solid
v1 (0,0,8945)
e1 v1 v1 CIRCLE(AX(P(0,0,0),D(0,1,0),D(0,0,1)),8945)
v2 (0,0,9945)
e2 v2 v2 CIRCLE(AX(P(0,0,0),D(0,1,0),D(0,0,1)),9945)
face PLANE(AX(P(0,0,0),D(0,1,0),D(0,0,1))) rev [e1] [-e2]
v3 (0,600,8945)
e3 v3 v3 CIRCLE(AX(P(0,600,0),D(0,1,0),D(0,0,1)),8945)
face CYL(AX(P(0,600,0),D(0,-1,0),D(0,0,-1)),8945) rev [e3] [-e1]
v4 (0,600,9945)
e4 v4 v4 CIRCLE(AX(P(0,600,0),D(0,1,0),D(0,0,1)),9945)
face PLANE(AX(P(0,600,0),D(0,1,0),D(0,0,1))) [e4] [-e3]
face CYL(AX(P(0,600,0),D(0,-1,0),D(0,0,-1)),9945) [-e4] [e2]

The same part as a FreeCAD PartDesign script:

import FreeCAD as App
import Part
import Sketcher

V = App.Vector
Q = App.Units.Quantity

doc = App.newDocument("Part")
body = doc.addObject("PartDesign::Body", "Body")

# Sketch on XZ plane
sketch1 = body.newObject("Sketcher::SketchObject", "Sketch")
sketch1.AttachmentSupport = (doc.getObject("XZ_Plane"), [""])
sketch1.MapMode = "FlatFace"
sketch1.addGeometry([
    Part.Circle(V(0, 0, 0), V(0, 0, 1), 9945),
    Part.Circle(V(0, 0, 0), V(0, 0, 1), 8945),
], False)
sketch1.addConstraint([
    Sketcher.Constraint("Coincident", 0, 3, -1, 1),
    Sketcher.Constraint("Coincident", 1, 3, -1, 1),
    Sketcher.Constraint("Diameter", 0, Q("19890 mm")),
    Sketcher.Constraint("Diameter", 1, Q("17890 mm")),
])
pad1 = body.newObject("PartDesign::Pad", "Pad")
pad1.Profile = sketch1
pad1.Length = 600
pad1.Reversed = True

doc.recompute()
